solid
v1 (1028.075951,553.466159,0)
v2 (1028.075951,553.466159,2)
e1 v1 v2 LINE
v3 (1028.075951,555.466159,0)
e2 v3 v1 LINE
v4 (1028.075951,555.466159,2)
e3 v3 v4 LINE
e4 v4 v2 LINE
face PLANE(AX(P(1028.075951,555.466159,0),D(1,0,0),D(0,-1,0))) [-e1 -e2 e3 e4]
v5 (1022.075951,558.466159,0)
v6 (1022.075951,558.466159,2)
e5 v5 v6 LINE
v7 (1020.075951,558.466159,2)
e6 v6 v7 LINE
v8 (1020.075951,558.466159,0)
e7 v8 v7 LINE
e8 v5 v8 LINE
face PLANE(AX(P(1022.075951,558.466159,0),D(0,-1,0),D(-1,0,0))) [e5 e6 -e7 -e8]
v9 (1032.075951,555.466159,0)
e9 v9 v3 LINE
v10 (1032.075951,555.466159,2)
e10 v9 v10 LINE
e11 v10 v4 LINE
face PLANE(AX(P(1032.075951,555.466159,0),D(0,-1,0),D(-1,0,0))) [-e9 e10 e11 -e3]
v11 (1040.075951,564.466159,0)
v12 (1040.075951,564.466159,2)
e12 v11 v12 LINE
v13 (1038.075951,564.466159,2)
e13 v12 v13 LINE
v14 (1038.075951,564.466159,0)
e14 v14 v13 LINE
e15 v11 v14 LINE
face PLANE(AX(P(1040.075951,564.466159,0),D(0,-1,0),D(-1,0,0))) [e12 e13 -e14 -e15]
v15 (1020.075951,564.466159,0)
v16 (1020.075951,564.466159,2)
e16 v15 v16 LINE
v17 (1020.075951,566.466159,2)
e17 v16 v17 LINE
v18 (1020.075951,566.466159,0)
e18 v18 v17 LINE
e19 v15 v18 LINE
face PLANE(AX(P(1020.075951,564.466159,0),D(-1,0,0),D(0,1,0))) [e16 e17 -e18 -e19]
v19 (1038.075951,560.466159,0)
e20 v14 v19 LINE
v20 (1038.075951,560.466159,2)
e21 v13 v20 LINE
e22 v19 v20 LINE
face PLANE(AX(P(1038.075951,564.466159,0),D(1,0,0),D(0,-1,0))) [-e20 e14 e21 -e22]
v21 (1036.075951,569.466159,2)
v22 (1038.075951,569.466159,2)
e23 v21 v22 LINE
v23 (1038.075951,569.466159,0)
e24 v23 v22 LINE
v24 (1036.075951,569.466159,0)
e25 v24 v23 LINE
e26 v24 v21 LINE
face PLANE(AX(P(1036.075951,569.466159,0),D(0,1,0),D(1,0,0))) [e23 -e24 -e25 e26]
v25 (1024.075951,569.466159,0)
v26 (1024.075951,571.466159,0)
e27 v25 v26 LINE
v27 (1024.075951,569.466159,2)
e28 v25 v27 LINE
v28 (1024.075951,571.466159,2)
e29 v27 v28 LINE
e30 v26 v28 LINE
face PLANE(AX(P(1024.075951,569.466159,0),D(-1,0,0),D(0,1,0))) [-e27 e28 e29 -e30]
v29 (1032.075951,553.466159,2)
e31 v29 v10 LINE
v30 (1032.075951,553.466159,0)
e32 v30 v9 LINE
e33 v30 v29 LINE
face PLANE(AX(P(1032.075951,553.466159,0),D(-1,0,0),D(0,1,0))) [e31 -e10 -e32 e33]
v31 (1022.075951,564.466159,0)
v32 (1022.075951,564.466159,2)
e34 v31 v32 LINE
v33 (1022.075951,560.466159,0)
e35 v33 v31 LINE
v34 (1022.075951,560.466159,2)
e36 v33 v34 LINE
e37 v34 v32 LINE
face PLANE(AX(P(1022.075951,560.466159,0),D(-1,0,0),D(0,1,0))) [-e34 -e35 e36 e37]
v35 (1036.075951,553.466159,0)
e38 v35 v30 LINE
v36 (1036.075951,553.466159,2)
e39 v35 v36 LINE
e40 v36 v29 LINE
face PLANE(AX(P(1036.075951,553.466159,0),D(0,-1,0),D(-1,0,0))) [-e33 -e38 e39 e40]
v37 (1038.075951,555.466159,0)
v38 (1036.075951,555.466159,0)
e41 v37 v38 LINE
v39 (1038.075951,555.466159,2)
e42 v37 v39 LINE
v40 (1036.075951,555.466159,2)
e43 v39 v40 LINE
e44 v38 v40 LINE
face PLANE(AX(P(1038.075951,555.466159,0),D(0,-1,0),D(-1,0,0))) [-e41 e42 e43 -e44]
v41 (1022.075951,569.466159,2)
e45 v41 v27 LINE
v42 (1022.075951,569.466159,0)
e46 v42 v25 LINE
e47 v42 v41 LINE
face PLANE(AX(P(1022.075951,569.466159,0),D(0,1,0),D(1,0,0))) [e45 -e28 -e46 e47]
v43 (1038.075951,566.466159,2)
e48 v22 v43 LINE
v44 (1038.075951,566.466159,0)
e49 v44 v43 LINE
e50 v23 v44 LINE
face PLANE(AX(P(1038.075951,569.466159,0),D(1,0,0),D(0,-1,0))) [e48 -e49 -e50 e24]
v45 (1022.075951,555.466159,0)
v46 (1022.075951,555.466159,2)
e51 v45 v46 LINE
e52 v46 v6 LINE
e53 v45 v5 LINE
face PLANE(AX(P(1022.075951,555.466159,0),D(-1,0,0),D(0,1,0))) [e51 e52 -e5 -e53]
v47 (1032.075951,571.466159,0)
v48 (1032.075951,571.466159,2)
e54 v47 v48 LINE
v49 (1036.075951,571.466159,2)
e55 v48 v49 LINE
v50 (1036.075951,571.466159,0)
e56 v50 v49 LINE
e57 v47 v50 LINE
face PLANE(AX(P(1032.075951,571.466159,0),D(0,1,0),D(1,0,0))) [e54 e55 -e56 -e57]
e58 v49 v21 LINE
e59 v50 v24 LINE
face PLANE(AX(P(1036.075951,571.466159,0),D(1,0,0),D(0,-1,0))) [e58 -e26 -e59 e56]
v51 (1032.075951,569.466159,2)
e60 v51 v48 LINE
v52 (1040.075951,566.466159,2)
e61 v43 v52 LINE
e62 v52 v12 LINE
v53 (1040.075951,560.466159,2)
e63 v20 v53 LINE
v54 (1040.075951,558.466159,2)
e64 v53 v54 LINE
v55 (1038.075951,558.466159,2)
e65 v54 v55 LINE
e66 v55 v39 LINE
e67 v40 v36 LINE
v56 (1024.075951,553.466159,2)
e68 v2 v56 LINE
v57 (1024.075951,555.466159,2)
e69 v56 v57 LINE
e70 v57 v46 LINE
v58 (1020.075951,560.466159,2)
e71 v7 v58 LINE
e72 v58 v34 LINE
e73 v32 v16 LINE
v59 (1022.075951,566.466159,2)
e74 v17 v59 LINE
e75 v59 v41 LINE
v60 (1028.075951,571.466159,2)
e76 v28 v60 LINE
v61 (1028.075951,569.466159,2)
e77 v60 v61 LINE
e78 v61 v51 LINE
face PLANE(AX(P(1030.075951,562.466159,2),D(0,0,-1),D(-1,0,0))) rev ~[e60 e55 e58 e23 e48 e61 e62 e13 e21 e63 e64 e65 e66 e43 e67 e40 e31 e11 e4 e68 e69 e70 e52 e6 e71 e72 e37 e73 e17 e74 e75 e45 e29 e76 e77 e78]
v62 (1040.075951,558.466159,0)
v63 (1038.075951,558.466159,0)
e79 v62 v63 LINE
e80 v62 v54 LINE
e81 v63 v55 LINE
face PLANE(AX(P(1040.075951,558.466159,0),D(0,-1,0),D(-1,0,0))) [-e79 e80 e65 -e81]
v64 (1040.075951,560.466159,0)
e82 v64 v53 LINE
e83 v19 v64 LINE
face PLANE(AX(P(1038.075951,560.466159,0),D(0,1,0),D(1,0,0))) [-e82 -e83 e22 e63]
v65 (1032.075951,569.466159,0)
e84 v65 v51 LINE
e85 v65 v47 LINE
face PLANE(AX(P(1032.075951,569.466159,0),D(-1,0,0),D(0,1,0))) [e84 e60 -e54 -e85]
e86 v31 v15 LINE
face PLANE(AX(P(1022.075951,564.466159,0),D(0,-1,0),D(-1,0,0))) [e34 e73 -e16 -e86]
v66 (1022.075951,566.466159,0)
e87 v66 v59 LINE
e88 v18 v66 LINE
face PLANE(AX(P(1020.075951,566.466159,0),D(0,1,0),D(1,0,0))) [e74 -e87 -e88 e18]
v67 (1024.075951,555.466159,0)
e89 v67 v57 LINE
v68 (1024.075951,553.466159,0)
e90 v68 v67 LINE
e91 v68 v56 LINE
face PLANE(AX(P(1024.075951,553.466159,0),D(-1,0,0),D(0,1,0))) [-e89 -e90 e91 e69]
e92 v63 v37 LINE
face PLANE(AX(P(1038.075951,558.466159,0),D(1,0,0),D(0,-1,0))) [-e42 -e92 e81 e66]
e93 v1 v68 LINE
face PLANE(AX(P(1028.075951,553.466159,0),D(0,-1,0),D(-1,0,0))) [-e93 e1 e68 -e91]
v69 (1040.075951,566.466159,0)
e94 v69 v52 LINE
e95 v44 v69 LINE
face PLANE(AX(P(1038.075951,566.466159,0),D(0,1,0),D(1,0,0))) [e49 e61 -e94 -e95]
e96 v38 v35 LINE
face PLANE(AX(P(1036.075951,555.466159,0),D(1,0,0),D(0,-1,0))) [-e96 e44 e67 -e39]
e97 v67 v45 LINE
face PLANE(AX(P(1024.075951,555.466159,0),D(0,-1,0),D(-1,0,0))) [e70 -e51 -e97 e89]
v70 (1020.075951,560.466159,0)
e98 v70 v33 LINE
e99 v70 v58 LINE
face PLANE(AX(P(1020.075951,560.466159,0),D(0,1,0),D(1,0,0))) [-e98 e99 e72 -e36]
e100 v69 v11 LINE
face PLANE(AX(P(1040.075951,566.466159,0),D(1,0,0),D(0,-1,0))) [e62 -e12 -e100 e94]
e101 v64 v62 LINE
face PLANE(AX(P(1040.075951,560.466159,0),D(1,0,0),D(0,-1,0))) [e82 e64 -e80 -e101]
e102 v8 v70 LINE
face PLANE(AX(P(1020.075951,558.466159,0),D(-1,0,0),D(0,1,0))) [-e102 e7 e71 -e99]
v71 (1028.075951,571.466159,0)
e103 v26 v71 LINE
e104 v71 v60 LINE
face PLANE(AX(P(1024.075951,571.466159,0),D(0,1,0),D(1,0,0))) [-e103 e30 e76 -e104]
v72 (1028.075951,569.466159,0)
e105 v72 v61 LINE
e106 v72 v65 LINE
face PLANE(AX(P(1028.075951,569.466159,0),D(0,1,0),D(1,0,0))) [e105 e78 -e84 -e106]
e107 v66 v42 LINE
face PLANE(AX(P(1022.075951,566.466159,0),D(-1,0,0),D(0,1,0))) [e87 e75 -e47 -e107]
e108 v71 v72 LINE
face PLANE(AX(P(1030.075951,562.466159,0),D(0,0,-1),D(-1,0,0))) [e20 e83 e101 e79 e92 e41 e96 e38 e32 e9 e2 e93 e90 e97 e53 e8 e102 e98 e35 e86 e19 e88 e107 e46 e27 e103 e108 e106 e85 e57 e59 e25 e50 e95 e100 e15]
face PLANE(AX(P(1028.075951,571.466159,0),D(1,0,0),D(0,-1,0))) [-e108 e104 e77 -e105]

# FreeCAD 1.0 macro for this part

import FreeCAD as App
import Part
import Sketcher

V = App.Vector

doc = App.newDocument("Part")
body = doc.addObject("PartDesign::Body", "Body")

sketch1 = body.newObject("Sketcher::SketchObject", "Sketch")
sketch1.AttachmentSupport = (doc.getObject("XY_Plane"), [""])
sketch1.MapMode = "FlatFace"
sketch1.addGeometry([
    Part.LineSegment(V(1022.075951, 569.466159, 0), V(1022.075951, 566.466159, 0)),
    Part.LineSegment(V(1022.075951, 566.466159, 0), V(1020.075951, 566.466159, 0)),
    Part.LineSegment(V(1020.075951, 566.466159, 0), V(1020.075951, 564.466159, 0)),
    Part.LineSegment(V(1020.075951, 564.466159, 0), V(1022.075951, 564.466159, 0)),
    Part.LineSegment(V(1022.075951, 564.466159, 0), V(1022.075951, 560.466159, 0)),
    Part.LineSegment(V(1022.075951, 560.466159, 0), V(1020.075951, 560.466159, 0)),
    Part.LineSegment(V(1020.075951, 560.466159, 0), V(1020.075951, 558.466159, 0)),
    Part.LineSegment(V(1020.075951, 558.466159, 0), V(1022.075951, 558.466159, 0)),
    Part.LineSegment(V(1022.075951, 558.466159, 0), V(1022.075951, 555.466159, 0)),
    Part.LineSegment(V(1022.075951, 555.466159, 0), V(1024.075951, 555.466159, 0)),
    Part.LineSegment(V(1024.075951, 555.466159, 0), V(1024.075951, 553.466159, 0)),
    Part.LineSegment(V(1024.075951, 553.466159, 0), V(1028.075951, 553.466159, 0)),
    Part.LineSegment(V(1028.075951, 553.466159, 0), V(1028.075951, 555.466159, 0)),
    Part.LineSegment(V(1028.075951, 555.466159, 0), V(1032.075951, 555.466159, 0)),
    Part.LineSegment(V(1032.075951, 555.466159, 0), V(1032.075951, 553.466159, 0)),
    Part.LineSegment(V(1032.075951, 553.466159, 0), V(1036.075951, 553.466159, 0)),
    Part.LineSegment(V(1036.075951, 553.466159, 0), V(1036.075951, 555.466159, 0)),
    Part.LineSegment(V(1036.075951, 555.466159, 0), V(1038.075951, 555.466159, 0)),
    Part.LineSegment(V(1038.075951, 555.466159, 0), V(1038.075951, 558.466159, 0)),
    Part.LineSegment(V(1038.075951, 558.466159, 0), V(1040.075951, 558.466159, 0)),
    Part.LineSegment(V(1040.075951, 558.466159, 0), V(1040.075951, 560.466159, 0)),
    Part.LineSegment(V(1040.075951, 560.466159, 0), V(1038.075951, 560.466159, 0)),
    Part.LineSegment(V(1038.075951, 560.466159, 0), V(1038.075951, 564.466159, 0)),
    Part.LineSegment(V(1038.075951, 564.466159, 0), V(1040.075951, 564.466159, 0)),
    Part.LineSegment(V(1040.075951, 564.466159, 0), V(1040.075951, 566.466159, 0)),
    Part.LineSegment(V(1040.075951, 566.466159, 0), V(1038.075951, 566.466159, 0)),
    Part.LineSegment(V(1038.075951, 566.466159, 0), V(1038.075951, 569.466159, 0)),
    Part.LineSegment(V(1038.075951, 569.466159, 0), V(1036.075951, 569.466159, 0)),
    Part.LineSegment(V(1036.075951, 569.466159, 0), V(1036.075951, 571.466159, 0)),
    Part.LineSegment(V(1036.075951, 571.466159, 0), V(1032.075951, 571.466159, 0)),
    Part.LineSegment(V(1032.075951, 571.466159, 0), V(1032.075951, 569.466159, 0)),
    Part.LineSegment(V(1032.075951, 569.466159, 0), V(1028.075951, 569.466159, 0)),
    Part.LineSegment(V(1028.075951, 569.466159, 0), V(1028.075951, 571.466159, 0)),
    Part.LineSegment(V(1028.075951, 571.466159, 0), V(1024.075951, 571.466159, 0)),
    Part.LineSegment(V(1024.075951, 571.466159, 0), V(1024.075951, 569.466159, 0)),
    Part.LineSegment(V(1024.075951, 569.466159, 0), V(1022.075951, 569.466159, 0)),
], False)
sketch1.addConstraint([
    Sketcher.Constraint("Coincident", 0, 2, 1, 1),
    Sketcher.Constraint("Coincident", 1, 2, 2, 1),
    Sketcher.Constraint("Coincident", 2, 2, 3, 1),
    Sketcher.Constraint("Coincident", 3, 2, 4, 1),
    Sketcher.Constraint("Coincident", 4, 2, 5, 1),
    Sketcher.Constraint("Coincident", 5, 2, 6, 1),
    Sketcher.Constraint("Coincident", 6, 2, 7, 1),
    Sketcher.Constraint("Coincident", 7, 2, 8, 1),
    Sketcher.Constraint("Coincident", 8, 2, 9, 1),
    Sketcher.Constraint("Coincident", 9, 2, 10, 1),
    Sketcher.Constraint("Coincident", 10, 2, 11, 1),
    Sketcher.Constraint("Coincident", 11, 2, 12, 1),
    Sketcher.Constraint("Coincident", 12, 2, 13, 1),
    Sketcher.Constraint("Coincident", 13, 2, 14, 1),
    Sketcher.Constraint("Coincident", 14, 2, 15, 1),
    Sketcher.Constraint("Coincident", 15, 2, 16, 1),
    Sketcher.Constraint("Coincident", 16, 2, 17, 1),
    Sketcher.Constraint("Coincident", 17, 2, 18, 1),
    Sketcher.Constraint("Coincident", 18, 2, 19, 1),
    Sketcher.Constraint("Coincident", 19, 2, 20, 1),
    Sketcher.Constraint("Coincident", 20, 2, 21, 1),
    Sketcher.Constraint("Coincident", 21, 2, 22, 1),
    Sketcher.Constraint("Coincident", 22, 2, 23, 1),
    Sketcher.Constraint("Coincident", 23, 2, 24, 1),
    Sketcher.Constraint("Coincident", 24, 2, 25, 1),
    Sketcher.Constraint("Coincident", 25, 2, 26, 1),
    Sketcher.Constraint("Coincident", 26, 2, 27, 1),
    Sketcher.Constraint("Coincident", 27, 2, 28, 1),
    Sketcher.Constraint("Coincident", 28, 2, 29, 1),
    Sketcher.Constraint("Coincident", 29, 2, 30, 1),
    Sketcher.Constraint("Coincident", 30, 2, 31, 1),
    Sketcher.Constraint("Coincident", 31, 2, 32, 1),
    Sketcher.Constraint("Coincident", 32, 2, 33, 1),
    Sketcher.Constraint("Coincident", 33, 2, 34, 1),
    Sketcher.Constraint("Coincident", 34, 2, 35, 1),
    Sketcher.Constraint("Coincident", 35, 2, 0, 1),
    Sketcher.Constraint("Vertical", 0),
    Sketcher.Constraint("Horizontal", 1),
    Sketcher.Constraint("Vertical", 2),
    Sketcher.Constraint("Horizontal", 3),
    Sketcher.Constraint("Vertical", 4),
    Sketcher.Constraint("Horizontal", 5),
    Sketcher.Constraint("Vertical", 6),
    Sketcher.Constraint("Horizontal", 7),
    Sketcher.Constraint("Vertical", 8),
    Sketcher.Constraint("Horizontal", 9),
    Sketcher.Constraint("Vertical", 10),
    Sketcher.Constraint("Horizontal", 11),
    Sketcher.Constraint("Vertical", 12),
    Sketcher.Constraint("Horizontal", 13),
    Sketcher.Constraint("Vertical", 14),
    Sketcher.Constraint("Horizontal", 15),
    Sketcher.Constraint("Vertical", 16),
    Sketcher.Constraint("Horizontal", 17),
    Sketcher.Constraint("Vertical", 18),
    Sketcher.Constraint("Horizontal", 19),
    Sketcher.Constraint("Vertical", 20),
    Sketcher.Constraint("Horizontal", 21),
    Sketcher.Constraint("Vertical", 22),
    Sketcher.Constraint("Horizontal", 23),
    Sketcher.Constraint("Vertical", 24),
    Sketcher.Constraint("Horizontal", 25),
    Sketcher.Constraint("Vertical", 26),
    Sketcher.Constraint("Horizontal", 27),
    Sketcher.Constraint("Vertical", 28),
    Sketcher.Constraint("Horizontal", 29),
    Sketcher.Constraint("Vertical", 30),
    Sketcher.Constraint("Horizontal", 31),
    Sketcher.Constraint("Vertical", 32),
    Sketcher.Constraint("Horizontal", 33),
    Sketcher.Constraint("Vertical", 34),
    Sketcher.Constraint("Horizontal", 35),
    Sketcher.Constraint("Horizontal", 9, 2, 12, 2),
    Sketcher.Constraint("Horizontal", 11, 2, 14, 2),
    Sketcher.Constraint("Horizontal", 13, 2, 16, 2),
    Sketcher.Constraint("Horizontal", 7, 2, 18, 2),
    Sketcher.Constraint("Horizontal", 5, 2, 20, 2),
    Sketcher.Constraint("Horizontal", 3, 2, 22, 2),
    Sketcher.Constraint("Horizontal", 1, 2, 24, 2),
    Sketcher.Constraint("Horizontal", 27, 2, 30, 2),
    Sketcher.Constraint("Horizontal", 29, 2, 32, 2),
    Sketcher.Constraint("Horizontal", 31, 2, 34, 2),
    Sketcher.Constraint("Vertical", 0, 2, 3, 2),
    Sketcher.Constraint("Vertical", 2, 2, 5, 2),
    Sketcher.Constraint("Vertical", 4, 2, 7, 2),
    Sketcher.Constraint("Vertical", 18, 2, 21, 2),
    Sketcher.Constraint("Vertical", 20, 2, 23, 2),
    Sketcher.Constraint("Vertical", 22, 2, 25, 2),
    Sketcher.Constraint("Vertical", 16, 2, 27, 2),
    Sketcher.Constraint("Vertical", 14, 2, 29, 2),
    Sketcher.Constraint("Vertical", 12, 2, 31, 2),
    Sketcher.Constraint("Vertical", 10, 2, 33, 2),
    Sketcher.Constraint("Equal", 7, 9),
    Sketcher.Constraint("Equal", 11, 13),
    Sketcher.Constraint("Equal", 13, 15),
    Sketcher.Constraint("Equal", 9, 17),
    Sketcher.Constraint("Equal", 17, 19),
    Sketcher.Constraint("Equal", 35, 2),
    Sketcher.Constraint("Equal", 33, 4),
    Sketcher.Constraint("Equal", 2, 6),
    Sketcher.Constraint("Equal", 0, 8),
    Sketcher.Constraint("Equal", 6, 10),
    Sketcher.Constraint("Equal", 24, 28),
    Sketcher.Constraint("DistanceX", 1, 2, 1, 1, 2.0),
    Sketcher.Constraint("DistanceX", 11, 1, 11, 2, 4.0),
    Sketcher.Constraint("DistanceY", 0, 2, 0, 1, 3.0),
    Sketcher.Constraint("DistanceX", -1, 1, 0, 2, 1022.075951),
    Sketcher.Constraint("DistanceY", -1, 1, 0, 2, 566.466159),
])
pad1 = body.newObject("PartDesign::Pad", "Pad")
pad1.Profile = sketch1
pad1.Length = 2

doc.recompute()
